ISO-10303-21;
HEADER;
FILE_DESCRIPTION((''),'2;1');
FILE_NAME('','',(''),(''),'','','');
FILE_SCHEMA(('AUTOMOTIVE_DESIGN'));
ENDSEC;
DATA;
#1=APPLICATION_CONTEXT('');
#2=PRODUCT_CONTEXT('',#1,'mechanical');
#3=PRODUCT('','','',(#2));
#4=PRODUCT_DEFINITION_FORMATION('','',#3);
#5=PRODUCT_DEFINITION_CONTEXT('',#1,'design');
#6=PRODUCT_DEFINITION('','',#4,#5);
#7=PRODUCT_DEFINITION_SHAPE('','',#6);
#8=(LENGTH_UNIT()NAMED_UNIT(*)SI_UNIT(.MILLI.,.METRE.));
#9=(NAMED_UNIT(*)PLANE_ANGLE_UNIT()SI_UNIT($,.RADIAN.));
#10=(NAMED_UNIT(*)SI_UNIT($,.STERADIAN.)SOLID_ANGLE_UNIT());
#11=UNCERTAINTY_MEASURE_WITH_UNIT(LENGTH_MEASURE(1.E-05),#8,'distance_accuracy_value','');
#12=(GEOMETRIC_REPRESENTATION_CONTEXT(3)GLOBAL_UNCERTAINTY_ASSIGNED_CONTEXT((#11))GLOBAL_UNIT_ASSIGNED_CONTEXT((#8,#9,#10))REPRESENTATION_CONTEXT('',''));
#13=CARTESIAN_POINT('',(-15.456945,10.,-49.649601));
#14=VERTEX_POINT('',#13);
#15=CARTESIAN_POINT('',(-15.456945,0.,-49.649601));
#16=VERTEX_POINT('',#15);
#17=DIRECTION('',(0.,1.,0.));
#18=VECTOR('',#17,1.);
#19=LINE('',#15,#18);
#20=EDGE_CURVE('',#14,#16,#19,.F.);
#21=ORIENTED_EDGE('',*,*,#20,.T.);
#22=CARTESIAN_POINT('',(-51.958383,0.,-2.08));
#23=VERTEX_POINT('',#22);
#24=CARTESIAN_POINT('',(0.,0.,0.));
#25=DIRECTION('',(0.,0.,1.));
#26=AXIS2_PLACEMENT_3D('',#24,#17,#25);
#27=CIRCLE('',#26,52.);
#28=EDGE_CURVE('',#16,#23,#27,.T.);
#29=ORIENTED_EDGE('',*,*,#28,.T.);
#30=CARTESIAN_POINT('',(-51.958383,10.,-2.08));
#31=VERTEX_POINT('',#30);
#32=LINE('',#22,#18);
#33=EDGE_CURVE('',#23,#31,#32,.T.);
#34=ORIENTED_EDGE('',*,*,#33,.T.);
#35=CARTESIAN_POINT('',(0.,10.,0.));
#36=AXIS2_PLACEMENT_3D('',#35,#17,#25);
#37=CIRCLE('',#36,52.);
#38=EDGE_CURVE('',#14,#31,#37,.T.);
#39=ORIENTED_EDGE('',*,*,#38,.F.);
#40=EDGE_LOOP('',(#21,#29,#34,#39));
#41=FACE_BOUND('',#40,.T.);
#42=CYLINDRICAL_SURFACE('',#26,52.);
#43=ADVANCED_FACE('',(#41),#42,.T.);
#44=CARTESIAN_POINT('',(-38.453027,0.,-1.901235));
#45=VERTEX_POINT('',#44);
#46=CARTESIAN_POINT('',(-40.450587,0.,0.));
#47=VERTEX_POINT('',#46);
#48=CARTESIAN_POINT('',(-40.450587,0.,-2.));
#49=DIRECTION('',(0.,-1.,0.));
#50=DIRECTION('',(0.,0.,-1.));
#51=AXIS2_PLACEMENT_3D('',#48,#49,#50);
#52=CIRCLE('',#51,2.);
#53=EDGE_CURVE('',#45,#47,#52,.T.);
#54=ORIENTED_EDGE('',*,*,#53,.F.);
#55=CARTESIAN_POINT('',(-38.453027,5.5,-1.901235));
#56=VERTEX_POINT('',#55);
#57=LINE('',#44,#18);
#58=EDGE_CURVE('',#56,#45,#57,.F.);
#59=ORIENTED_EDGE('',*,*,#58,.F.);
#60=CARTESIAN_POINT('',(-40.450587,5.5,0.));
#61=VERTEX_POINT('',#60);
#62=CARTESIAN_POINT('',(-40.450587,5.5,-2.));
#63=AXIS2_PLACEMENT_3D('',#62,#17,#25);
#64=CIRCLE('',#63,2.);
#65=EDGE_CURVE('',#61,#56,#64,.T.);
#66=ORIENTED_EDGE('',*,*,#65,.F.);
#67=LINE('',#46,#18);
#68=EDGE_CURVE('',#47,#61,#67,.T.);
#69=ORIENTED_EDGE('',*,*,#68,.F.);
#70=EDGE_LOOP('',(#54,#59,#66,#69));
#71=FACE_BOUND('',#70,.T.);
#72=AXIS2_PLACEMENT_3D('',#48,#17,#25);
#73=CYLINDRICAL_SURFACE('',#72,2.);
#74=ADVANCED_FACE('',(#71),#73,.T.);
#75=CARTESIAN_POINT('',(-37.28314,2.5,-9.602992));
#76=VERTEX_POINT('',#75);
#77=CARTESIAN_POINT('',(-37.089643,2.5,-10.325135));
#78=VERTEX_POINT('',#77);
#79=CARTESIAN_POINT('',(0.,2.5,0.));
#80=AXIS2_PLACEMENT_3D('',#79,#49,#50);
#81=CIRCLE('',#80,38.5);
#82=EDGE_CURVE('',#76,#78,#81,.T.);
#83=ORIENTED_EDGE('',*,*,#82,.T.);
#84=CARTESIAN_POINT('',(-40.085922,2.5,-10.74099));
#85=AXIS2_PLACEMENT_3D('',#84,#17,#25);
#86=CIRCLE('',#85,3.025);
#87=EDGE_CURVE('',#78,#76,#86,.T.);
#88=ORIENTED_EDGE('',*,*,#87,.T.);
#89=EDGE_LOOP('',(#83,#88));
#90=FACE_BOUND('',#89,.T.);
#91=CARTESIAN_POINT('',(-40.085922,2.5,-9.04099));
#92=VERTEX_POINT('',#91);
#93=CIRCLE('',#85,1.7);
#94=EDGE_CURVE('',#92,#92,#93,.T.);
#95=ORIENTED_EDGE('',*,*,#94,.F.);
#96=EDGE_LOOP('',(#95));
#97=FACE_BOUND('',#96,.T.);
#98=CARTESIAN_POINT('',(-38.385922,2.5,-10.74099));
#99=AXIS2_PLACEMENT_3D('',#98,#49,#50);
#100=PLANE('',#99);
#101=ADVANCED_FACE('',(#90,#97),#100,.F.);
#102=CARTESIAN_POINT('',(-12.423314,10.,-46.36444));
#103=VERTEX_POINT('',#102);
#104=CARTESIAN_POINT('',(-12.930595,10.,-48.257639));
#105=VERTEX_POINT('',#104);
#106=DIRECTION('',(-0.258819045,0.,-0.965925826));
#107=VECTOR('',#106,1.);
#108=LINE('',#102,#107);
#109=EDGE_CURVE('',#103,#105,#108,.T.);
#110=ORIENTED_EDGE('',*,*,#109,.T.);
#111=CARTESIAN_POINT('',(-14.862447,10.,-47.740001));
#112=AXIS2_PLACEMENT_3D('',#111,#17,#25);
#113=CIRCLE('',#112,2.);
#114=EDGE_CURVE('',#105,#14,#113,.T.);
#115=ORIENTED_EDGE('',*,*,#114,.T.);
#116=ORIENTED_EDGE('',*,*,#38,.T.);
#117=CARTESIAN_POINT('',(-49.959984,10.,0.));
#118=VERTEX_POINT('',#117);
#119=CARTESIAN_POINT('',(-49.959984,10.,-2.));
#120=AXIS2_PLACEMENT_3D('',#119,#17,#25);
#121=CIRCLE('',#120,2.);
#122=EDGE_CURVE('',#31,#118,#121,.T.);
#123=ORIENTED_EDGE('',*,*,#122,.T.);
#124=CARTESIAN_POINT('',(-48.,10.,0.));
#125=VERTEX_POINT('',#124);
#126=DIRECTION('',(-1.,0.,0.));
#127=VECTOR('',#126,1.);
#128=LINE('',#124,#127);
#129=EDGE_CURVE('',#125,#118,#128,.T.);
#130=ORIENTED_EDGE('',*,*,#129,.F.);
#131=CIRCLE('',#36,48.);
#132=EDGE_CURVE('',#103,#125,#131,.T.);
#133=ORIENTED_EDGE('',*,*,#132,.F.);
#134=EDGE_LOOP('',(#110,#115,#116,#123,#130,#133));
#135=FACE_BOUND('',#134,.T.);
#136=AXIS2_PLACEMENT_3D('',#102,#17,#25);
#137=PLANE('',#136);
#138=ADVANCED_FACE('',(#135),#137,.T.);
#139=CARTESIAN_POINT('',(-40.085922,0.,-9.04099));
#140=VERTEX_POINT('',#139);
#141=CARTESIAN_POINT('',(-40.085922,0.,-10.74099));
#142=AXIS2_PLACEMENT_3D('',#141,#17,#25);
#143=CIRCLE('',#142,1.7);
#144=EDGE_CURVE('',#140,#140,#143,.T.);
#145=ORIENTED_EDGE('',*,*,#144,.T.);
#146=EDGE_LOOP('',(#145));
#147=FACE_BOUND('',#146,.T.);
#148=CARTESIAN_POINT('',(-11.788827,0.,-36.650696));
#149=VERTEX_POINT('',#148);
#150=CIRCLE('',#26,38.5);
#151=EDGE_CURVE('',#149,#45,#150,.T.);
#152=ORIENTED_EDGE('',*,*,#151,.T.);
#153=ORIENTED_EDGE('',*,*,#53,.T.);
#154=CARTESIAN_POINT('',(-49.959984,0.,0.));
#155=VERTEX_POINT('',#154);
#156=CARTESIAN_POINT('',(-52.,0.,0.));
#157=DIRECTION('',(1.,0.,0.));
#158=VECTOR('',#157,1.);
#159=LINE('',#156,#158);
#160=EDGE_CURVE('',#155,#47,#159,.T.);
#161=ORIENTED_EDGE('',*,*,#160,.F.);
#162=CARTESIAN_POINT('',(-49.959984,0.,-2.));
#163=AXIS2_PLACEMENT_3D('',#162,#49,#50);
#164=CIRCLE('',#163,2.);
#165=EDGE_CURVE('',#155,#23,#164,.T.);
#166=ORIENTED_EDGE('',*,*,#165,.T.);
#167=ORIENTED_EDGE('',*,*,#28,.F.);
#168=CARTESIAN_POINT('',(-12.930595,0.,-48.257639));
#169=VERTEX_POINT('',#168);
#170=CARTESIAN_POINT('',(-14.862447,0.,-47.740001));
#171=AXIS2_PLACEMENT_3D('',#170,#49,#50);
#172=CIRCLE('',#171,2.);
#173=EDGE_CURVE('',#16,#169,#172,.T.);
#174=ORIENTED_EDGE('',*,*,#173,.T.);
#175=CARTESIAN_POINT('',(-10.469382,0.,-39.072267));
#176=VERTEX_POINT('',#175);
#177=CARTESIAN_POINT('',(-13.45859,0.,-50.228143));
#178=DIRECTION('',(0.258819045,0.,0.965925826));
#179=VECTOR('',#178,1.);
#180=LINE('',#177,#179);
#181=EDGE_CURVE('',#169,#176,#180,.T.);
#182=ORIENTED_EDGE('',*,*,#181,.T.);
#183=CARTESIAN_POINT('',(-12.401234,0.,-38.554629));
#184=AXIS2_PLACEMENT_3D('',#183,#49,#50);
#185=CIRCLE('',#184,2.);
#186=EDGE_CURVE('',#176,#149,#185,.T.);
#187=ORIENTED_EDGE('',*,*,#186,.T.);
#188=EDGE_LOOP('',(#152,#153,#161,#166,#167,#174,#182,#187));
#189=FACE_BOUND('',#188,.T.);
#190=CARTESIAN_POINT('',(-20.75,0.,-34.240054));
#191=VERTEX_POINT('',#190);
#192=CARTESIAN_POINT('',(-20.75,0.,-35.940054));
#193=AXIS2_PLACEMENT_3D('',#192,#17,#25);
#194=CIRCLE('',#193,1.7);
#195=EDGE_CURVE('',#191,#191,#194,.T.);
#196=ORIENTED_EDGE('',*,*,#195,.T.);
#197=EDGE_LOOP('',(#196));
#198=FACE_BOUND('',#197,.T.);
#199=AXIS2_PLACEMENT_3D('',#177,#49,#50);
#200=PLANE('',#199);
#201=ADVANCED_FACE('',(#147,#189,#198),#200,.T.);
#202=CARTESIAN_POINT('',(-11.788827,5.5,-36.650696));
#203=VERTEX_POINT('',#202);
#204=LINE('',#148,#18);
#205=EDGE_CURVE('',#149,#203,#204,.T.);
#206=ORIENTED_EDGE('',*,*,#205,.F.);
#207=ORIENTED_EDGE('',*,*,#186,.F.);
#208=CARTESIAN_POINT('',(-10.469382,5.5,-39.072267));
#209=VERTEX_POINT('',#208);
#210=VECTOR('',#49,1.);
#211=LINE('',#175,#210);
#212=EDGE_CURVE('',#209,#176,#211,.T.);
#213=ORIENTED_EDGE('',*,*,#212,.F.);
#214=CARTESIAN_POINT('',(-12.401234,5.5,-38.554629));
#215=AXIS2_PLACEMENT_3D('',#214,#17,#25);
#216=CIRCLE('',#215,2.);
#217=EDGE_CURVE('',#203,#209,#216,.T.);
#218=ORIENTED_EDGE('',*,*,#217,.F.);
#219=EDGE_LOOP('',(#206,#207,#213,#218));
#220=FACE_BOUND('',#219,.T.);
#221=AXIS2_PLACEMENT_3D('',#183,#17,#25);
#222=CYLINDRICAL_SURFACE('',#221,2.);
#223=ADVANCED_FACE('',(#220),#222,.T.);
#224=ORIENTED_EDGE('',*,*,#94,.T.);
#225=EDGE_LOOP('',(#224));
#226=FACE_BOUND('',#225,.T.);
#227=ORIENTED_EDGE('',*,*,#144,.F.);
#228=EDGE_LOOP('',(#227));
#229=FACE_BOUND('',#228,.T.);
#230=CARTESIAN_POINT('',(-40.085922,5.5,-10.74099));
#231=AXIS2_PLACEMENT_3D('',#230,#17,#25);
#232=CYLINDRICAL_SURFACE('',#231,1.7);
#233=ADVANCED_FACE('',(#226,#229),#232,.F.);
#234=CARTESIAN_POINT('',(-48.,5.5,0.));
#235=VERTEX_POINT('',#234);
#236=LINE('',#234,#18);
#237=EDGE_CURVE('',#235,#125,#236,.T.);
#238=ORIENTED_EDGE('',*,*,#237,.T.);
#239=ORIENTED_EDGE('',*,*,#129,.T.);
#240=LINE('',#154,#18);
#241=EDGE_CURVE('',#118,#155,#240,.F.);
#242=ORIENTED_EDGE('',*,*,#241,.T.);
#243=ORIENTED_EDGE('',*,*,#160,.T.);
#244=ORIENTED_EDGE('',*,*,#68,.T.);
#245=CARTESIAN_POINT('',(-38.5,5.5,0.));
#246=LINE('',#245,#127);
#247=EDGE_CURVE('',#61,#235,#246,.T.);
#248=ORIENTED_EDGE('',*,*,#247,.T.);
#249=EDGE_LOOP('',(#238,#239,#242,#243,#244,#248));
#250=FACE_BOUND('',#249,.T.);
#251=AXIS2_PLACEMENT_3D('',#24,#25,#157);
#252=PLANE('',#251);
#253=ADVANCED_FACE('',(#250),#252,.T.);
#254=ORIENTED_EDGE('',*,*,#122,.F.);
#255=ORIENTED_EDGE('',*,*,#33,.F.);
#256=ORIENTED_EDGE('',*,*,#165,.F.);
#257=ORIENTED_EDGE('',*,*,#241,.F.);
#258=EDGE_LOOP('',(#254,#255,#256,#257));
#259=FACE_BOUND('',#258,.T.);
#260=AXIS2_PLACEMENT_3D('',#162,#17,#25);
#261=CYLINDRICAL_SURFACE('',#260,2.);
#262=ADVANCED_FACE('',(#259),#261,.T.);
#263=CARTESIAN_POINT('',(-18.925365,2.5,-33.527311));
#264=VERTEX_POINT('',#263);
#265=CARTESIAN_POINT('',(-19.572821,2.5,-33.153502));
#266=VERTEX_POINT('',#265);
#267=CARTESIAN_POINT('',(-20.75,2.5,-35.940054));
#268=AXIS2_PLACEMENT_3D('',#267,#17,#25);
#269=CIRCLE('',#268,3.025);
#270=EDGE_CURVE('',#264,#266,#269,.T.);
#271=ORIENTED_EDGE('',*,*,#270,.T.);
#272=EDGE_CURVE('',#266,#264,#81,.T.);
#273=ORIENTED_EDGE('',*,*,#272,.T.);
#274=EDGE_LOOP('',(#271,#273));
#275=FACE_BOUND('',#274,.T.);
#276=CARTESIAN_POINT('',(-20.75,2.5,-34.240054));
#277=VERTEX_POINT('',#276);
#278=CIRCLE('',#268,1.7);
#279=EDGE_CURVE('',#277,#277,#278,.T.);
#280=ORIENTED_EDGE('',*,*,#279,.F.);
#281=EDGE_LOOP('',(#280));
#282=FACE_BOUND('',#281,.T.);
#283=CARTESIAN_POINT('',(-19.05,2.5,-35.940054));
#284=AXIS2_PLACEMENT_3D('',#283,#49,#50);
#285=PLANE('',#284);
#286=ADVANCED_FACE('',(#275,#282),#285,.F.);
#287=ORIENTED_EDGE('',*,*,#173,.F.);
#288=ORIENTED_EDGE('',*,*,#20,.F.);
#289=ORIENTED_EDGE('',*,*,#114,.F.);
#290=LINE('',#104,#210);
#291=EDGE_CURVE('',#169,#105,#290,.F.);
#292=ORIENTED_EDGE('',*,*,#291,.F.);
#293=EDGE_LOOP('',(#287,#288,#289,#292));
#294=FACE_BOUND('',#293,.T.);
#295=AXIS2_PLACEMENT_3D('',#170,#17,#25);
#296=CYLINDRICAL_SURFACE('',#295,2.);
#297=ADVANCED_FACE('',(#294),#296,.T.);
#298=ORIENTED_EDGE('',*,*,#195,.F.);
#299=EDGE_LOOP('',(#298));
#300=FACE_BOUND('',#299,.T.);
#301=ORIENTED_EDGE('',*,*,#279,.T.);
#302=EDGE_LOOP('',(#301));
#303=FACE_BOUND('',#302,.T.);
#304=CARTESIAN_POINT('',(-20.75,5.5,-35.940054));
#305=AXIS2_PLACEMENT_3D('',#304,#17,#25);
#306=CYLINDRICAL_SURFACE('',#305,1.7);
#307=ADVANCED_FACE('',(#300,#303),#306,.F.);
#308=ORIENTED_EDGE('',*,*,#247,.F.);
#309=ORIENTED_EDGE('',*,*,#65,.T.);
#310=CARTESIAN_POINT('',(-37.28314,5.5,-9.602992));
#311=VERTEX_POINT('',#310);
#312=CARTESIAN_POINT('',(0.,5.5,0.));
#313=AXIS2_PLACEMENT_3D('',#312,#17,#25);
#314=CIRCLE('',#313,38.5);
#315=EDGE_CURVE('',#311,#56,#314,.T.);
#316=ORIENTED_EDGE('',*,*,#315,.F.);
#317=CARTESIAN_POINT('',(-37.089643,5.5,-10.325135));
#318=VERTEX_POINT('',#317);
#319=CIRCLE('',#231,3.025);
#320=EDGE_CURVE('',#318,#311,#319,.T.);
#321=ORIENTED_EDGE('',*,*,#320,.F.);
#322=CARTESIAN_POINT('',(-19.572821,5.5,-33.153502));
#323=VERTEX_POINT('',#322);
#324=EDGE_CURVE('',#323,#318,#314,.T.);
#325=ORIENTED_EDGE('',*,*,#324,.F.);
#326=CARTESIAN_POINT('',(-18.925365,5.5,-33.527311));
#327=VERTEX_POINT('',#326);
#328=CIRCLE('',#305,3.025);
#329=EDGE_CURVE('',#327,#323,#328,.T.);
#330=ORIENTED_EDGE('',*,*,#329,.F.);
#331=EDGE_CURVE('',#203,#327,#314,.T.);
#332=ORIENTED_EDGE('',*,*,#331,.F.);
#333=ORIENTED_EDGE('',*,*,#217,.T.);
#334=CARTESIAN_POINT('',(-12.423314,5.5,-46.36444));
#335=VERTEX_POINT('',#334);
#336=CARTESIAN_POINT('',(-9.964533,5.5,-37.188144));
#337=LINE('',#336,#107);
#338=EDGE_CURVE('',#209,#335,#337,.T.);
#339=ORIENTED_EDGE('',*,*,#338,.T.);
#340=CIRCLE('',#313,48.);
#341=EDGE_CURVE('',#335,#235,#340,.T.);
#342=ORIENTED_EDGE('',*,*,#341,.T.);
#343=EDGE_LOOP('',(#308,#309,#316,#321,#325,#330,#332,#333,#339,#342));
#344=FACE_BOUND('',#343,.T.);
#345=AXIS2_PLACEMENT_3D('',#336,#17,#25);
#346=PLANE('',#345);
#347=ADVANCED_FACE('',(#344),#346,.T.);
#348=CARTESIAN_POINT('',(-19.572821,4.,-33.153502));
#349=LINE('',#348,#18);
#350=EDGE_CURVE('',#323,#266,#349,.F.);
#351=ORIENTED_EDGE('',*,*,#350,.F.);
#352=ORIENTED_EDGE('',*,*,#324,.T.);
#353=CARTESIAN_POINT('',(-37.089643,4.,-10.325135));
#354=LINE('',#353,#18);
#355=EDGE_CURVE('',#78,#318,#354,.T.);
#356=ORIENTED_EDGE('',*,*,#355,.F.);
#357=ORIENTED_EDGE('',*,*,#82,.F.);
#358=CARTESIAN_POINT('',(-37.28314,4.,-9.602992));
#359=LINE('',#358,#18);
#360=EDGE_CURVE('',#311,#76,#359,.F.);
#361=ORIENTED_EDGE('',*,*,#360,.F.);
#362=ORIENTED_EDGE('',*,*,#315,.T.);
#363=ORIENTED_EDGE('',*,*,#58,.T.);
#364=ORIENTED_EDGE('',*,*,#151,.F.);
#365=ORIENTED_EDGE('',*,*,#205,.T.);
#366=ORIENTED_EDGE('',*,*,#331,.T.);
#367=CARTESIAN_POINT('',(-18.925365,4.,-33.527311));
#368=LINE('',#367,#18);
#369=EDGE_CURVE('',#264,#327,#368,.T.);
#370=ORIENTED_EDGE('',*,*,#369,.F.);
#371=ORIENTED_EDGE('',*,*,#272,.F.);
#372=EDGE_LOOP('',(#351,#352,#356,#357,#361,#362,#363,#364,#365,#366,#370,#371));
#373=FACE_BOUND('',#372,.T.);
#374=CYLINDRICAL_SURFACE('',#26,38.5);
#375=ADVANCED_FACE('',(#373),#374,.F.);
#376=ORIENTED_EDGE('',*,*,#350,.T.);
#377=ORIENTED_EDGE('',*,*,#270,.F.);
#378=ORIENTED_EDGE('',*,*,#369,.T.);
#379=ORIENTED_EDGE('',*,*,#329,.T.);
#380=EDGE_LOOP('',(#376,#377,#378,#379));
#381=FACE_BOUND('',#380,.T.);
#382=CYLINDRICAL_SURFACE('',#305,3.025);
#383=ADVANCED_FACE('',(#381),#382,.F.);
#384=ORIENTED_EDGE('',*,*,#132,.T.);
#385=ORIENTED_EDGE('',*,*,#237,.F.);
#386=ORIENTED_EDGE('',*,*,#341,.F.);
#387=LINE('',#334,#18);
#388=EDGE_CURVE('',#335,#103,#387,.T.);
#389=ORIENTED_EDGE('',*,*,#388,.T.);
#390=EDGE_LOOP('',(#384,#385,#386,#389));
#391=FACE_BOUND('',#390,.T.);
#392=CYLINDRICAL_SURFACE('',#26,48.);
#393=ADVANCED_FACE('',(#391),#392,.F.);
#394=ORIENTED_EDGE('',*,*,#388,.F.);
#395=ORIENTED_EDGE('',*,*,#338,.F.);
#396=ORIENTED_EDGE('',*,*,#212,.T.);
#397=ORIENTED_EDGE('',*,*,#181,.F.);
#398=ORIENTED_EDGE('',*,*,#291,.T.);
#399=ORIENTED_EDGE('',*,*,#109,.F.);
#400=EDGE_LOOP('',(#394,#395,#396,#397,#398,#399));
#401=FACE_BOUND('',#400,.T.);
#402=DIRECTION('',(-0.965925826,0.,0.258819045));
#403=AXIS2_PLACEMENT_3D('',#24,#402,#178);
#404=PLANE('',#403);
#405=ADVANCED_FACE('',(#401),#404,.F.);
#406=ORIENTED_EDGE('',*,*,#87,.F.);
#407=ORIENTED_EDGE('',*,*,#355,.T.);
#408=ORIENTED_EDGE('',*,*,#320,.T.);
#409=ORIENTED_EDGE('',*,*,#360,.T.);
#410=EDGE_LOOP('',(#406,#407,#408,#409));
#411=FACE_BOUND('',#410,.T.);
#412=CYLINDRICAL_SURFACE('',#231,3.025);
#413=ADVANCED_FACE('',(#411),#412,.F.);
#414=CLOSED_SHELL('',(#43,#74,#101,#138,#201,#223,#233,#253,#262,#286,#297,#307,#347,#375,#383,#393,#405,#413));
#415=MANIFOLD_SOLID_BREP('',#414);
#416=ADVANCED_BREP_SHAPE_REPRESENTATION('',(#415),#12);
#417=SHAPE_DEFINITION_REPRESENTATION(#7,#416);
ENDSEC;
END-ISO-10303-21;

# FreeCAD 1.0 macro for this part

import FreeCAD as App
import Part
import Sketcher
from FreeCAD import Vector
Q = App.Units.Quantity


def edges_at(feature, points):
    """Names of the edges that pass closest to the given points."""
    edges = feature.Shape.Edges
    near = lambda p: min(range(len(edges)), key=lambda i: edges[i].distToShape(Part.Vertex(*p))[0])
    return sorted({f"Edge{near(p) + 1}" for p in points})

doc = App.newDocument("Part")
body = doc.addObject("PartDesign::Body", "Body")

# Sketch on XY plane
sketch1 = body.newObject("Sketcher::SketchObject", "Sketch")
sketch1.AttachmentSupport = (doc.getObject("XY_Plane"), [""])
sketch1.MapMode = "FlatFace"
sketch1.addGeometry(Part.LineSegment(Vector(-52, 0, 0), Vector(-38.5, 0, 0)), False)
sketch1.addGeometry(Part.LineSegment(Vector(-38.5, 0, 0), Vector(-38.5, 5.5, 0)), False)
sketch1.addGeometry(Part.LineSegment(Vector(-38.5, 5.5, 0), Vector(-48, 5.5, 0)), False)
sketch1.addGeometry(Part.LineSegment(Vector(-48, 5.5, 0), Vector(-48, 10, 0)), False)
sketch1.addGeometry(Part.LineSegment(Vector(-48, 10, 0), Vector(-52, 10, 0)), False)
sketch1.addGeometry(Part.LineSegment(Vector(-52, 10, 0), Vector(-52, 0, 0)), False)
sketch1.addConstraint(Sketcher.Constraint("Coincident", 0, 2, 1, 1))
sketch1.addConstraint(Sketcher.Constraint("Coincident", 1, 2, 2, 1))
sketch1.addConstraint(Sketcher.Constraint("Coincident", 2, 2, 3, 1))
sketch1.addConstraint(Sketcher.Constraint("Coincident", 3, 2, 4, 1))
sketch1.addConstraint(Sketcher.Constraint("Coincident", 4, 2, 5, 1))
sketch1.addConstraint(Sketcher.Constraint("Coincident", 5, 2, 0, 1))
sketch1.addConstraint(Sketcher.Constraint("Horizontal", 0))
sketch1.addConstraint(Sketcher.Constraint("Vertical", 1))
sketch1.addConstraint(Sketcher.Constraint("Horizontal", 2))
sketch1.addConstraint(Sketcher.Constraint("Vertical", 3))
sketch1.addConstraint(Sketcher.Constraint("Horizontal", 4))
sketch1.addConstraint(Sketcher.Constraint("Vertical", 5))
sketch1.addConstraint(Sketcher.Constraint("PointOnObject", 0, 2, -1))
sketch1.addConstraint(Sketcher.Constraint("DistanceX", 4, 2, 4, 1, Q("4 mm")))
sketch1.addConstraint(Sketcher.Constraint("DistanceY", 5, 2, 5, 1, Q("10 mm")))
sketch1.addConstraint(Sketcher.Constraint("DistanceX", 0, 1, 0, 2, Q("13.5 mm")))
sketch1.addConstraint(Sketcher.Constraint("DistanceY", 1, 1, 1, 2, Q("5.5 mm")))
sketch1.addConstraint(Sketcher.Constraint("DistanceX", 2, 2, -1, 1, Q("48 mm")))
revolution = body.newObject("PartDesign::Revolution", "Revolution")
revolution.Profile = sketch1
revolution.ReferenceAxis = (sketch1, ["V_Axis"])
revolution.Angle = 75
revolution.Reversed = True

# Sketch on XZ plane
sketch2 = body.newObject("Sketcher::SketchObject", "Sketch001")
sketch2.AttachmentSupport = (doc.getObject("XZ_Plane"), [""])
sketch2.MapMode = "FlatFace"
sketch2.AttachmentOffset = App.Placement(Vector(0, 0, -5.5), App.Rotation())
sketch2.addGeometry(Part.Circle(Vector(-20.8, -35.9, 0), Vector(0, 0, 1), 1.7), False)
sketch2.addGeometry(Part.Circle(Vector(-40.1, -10.7, 0), Vector(0, 0, 1), 1.7), False)
sketch2.addConstraint(Sketcher.Constraint("Equal", 0, 1))
sketch2.addConstraint(Sketcher.Constraint("Diameter", 0, Q("3.4 mm")))
sketch2.addConstraint(Sketcher.Constraint("DistanceX", 0, 3, -1, 1, Q("20.75 mm")))
sketch2.addConstraint(Sketcher.Constraint("DistanceX", 1, 3, -1, 1, Q("40.085922 mm")))
sketch2.addConstraint(Sketcher.Constraint("DistanceY", 1, 3, -1, 1, Q("10.74099 mm")))
sketch2.addConstraint(Sketcher.Constraint("DistanceY", 0, 3, -1, 1, Q("35.940054 mm")))
doc.recompute()
hole = body.newObject("PartDesign::Hole", "Hole")
hole.Profile = sketch2
hole.ThreadType = "None"
hole.Diameter = 3.4
hole.DepthType = "ThroughAll"
hole.HoleCutType = "Counterbore"
hole.HoleCutDiameter = 6.05
hole.HoleCutDepth = 3
hole.Reversed = True
doc.recompute()

fillet = body.newObject("PartDesign::Fillet", "Fillet")
fillet.Base = (hole, edges_at(hole, [
    (-9.965, 2.75, -37.188),
    (-13.459, 5, -50.228),
    (-52, 5, 0),
    (-38.5, 2.75, 0),
]))
fillet.Radius = 2

doc.recompute()
